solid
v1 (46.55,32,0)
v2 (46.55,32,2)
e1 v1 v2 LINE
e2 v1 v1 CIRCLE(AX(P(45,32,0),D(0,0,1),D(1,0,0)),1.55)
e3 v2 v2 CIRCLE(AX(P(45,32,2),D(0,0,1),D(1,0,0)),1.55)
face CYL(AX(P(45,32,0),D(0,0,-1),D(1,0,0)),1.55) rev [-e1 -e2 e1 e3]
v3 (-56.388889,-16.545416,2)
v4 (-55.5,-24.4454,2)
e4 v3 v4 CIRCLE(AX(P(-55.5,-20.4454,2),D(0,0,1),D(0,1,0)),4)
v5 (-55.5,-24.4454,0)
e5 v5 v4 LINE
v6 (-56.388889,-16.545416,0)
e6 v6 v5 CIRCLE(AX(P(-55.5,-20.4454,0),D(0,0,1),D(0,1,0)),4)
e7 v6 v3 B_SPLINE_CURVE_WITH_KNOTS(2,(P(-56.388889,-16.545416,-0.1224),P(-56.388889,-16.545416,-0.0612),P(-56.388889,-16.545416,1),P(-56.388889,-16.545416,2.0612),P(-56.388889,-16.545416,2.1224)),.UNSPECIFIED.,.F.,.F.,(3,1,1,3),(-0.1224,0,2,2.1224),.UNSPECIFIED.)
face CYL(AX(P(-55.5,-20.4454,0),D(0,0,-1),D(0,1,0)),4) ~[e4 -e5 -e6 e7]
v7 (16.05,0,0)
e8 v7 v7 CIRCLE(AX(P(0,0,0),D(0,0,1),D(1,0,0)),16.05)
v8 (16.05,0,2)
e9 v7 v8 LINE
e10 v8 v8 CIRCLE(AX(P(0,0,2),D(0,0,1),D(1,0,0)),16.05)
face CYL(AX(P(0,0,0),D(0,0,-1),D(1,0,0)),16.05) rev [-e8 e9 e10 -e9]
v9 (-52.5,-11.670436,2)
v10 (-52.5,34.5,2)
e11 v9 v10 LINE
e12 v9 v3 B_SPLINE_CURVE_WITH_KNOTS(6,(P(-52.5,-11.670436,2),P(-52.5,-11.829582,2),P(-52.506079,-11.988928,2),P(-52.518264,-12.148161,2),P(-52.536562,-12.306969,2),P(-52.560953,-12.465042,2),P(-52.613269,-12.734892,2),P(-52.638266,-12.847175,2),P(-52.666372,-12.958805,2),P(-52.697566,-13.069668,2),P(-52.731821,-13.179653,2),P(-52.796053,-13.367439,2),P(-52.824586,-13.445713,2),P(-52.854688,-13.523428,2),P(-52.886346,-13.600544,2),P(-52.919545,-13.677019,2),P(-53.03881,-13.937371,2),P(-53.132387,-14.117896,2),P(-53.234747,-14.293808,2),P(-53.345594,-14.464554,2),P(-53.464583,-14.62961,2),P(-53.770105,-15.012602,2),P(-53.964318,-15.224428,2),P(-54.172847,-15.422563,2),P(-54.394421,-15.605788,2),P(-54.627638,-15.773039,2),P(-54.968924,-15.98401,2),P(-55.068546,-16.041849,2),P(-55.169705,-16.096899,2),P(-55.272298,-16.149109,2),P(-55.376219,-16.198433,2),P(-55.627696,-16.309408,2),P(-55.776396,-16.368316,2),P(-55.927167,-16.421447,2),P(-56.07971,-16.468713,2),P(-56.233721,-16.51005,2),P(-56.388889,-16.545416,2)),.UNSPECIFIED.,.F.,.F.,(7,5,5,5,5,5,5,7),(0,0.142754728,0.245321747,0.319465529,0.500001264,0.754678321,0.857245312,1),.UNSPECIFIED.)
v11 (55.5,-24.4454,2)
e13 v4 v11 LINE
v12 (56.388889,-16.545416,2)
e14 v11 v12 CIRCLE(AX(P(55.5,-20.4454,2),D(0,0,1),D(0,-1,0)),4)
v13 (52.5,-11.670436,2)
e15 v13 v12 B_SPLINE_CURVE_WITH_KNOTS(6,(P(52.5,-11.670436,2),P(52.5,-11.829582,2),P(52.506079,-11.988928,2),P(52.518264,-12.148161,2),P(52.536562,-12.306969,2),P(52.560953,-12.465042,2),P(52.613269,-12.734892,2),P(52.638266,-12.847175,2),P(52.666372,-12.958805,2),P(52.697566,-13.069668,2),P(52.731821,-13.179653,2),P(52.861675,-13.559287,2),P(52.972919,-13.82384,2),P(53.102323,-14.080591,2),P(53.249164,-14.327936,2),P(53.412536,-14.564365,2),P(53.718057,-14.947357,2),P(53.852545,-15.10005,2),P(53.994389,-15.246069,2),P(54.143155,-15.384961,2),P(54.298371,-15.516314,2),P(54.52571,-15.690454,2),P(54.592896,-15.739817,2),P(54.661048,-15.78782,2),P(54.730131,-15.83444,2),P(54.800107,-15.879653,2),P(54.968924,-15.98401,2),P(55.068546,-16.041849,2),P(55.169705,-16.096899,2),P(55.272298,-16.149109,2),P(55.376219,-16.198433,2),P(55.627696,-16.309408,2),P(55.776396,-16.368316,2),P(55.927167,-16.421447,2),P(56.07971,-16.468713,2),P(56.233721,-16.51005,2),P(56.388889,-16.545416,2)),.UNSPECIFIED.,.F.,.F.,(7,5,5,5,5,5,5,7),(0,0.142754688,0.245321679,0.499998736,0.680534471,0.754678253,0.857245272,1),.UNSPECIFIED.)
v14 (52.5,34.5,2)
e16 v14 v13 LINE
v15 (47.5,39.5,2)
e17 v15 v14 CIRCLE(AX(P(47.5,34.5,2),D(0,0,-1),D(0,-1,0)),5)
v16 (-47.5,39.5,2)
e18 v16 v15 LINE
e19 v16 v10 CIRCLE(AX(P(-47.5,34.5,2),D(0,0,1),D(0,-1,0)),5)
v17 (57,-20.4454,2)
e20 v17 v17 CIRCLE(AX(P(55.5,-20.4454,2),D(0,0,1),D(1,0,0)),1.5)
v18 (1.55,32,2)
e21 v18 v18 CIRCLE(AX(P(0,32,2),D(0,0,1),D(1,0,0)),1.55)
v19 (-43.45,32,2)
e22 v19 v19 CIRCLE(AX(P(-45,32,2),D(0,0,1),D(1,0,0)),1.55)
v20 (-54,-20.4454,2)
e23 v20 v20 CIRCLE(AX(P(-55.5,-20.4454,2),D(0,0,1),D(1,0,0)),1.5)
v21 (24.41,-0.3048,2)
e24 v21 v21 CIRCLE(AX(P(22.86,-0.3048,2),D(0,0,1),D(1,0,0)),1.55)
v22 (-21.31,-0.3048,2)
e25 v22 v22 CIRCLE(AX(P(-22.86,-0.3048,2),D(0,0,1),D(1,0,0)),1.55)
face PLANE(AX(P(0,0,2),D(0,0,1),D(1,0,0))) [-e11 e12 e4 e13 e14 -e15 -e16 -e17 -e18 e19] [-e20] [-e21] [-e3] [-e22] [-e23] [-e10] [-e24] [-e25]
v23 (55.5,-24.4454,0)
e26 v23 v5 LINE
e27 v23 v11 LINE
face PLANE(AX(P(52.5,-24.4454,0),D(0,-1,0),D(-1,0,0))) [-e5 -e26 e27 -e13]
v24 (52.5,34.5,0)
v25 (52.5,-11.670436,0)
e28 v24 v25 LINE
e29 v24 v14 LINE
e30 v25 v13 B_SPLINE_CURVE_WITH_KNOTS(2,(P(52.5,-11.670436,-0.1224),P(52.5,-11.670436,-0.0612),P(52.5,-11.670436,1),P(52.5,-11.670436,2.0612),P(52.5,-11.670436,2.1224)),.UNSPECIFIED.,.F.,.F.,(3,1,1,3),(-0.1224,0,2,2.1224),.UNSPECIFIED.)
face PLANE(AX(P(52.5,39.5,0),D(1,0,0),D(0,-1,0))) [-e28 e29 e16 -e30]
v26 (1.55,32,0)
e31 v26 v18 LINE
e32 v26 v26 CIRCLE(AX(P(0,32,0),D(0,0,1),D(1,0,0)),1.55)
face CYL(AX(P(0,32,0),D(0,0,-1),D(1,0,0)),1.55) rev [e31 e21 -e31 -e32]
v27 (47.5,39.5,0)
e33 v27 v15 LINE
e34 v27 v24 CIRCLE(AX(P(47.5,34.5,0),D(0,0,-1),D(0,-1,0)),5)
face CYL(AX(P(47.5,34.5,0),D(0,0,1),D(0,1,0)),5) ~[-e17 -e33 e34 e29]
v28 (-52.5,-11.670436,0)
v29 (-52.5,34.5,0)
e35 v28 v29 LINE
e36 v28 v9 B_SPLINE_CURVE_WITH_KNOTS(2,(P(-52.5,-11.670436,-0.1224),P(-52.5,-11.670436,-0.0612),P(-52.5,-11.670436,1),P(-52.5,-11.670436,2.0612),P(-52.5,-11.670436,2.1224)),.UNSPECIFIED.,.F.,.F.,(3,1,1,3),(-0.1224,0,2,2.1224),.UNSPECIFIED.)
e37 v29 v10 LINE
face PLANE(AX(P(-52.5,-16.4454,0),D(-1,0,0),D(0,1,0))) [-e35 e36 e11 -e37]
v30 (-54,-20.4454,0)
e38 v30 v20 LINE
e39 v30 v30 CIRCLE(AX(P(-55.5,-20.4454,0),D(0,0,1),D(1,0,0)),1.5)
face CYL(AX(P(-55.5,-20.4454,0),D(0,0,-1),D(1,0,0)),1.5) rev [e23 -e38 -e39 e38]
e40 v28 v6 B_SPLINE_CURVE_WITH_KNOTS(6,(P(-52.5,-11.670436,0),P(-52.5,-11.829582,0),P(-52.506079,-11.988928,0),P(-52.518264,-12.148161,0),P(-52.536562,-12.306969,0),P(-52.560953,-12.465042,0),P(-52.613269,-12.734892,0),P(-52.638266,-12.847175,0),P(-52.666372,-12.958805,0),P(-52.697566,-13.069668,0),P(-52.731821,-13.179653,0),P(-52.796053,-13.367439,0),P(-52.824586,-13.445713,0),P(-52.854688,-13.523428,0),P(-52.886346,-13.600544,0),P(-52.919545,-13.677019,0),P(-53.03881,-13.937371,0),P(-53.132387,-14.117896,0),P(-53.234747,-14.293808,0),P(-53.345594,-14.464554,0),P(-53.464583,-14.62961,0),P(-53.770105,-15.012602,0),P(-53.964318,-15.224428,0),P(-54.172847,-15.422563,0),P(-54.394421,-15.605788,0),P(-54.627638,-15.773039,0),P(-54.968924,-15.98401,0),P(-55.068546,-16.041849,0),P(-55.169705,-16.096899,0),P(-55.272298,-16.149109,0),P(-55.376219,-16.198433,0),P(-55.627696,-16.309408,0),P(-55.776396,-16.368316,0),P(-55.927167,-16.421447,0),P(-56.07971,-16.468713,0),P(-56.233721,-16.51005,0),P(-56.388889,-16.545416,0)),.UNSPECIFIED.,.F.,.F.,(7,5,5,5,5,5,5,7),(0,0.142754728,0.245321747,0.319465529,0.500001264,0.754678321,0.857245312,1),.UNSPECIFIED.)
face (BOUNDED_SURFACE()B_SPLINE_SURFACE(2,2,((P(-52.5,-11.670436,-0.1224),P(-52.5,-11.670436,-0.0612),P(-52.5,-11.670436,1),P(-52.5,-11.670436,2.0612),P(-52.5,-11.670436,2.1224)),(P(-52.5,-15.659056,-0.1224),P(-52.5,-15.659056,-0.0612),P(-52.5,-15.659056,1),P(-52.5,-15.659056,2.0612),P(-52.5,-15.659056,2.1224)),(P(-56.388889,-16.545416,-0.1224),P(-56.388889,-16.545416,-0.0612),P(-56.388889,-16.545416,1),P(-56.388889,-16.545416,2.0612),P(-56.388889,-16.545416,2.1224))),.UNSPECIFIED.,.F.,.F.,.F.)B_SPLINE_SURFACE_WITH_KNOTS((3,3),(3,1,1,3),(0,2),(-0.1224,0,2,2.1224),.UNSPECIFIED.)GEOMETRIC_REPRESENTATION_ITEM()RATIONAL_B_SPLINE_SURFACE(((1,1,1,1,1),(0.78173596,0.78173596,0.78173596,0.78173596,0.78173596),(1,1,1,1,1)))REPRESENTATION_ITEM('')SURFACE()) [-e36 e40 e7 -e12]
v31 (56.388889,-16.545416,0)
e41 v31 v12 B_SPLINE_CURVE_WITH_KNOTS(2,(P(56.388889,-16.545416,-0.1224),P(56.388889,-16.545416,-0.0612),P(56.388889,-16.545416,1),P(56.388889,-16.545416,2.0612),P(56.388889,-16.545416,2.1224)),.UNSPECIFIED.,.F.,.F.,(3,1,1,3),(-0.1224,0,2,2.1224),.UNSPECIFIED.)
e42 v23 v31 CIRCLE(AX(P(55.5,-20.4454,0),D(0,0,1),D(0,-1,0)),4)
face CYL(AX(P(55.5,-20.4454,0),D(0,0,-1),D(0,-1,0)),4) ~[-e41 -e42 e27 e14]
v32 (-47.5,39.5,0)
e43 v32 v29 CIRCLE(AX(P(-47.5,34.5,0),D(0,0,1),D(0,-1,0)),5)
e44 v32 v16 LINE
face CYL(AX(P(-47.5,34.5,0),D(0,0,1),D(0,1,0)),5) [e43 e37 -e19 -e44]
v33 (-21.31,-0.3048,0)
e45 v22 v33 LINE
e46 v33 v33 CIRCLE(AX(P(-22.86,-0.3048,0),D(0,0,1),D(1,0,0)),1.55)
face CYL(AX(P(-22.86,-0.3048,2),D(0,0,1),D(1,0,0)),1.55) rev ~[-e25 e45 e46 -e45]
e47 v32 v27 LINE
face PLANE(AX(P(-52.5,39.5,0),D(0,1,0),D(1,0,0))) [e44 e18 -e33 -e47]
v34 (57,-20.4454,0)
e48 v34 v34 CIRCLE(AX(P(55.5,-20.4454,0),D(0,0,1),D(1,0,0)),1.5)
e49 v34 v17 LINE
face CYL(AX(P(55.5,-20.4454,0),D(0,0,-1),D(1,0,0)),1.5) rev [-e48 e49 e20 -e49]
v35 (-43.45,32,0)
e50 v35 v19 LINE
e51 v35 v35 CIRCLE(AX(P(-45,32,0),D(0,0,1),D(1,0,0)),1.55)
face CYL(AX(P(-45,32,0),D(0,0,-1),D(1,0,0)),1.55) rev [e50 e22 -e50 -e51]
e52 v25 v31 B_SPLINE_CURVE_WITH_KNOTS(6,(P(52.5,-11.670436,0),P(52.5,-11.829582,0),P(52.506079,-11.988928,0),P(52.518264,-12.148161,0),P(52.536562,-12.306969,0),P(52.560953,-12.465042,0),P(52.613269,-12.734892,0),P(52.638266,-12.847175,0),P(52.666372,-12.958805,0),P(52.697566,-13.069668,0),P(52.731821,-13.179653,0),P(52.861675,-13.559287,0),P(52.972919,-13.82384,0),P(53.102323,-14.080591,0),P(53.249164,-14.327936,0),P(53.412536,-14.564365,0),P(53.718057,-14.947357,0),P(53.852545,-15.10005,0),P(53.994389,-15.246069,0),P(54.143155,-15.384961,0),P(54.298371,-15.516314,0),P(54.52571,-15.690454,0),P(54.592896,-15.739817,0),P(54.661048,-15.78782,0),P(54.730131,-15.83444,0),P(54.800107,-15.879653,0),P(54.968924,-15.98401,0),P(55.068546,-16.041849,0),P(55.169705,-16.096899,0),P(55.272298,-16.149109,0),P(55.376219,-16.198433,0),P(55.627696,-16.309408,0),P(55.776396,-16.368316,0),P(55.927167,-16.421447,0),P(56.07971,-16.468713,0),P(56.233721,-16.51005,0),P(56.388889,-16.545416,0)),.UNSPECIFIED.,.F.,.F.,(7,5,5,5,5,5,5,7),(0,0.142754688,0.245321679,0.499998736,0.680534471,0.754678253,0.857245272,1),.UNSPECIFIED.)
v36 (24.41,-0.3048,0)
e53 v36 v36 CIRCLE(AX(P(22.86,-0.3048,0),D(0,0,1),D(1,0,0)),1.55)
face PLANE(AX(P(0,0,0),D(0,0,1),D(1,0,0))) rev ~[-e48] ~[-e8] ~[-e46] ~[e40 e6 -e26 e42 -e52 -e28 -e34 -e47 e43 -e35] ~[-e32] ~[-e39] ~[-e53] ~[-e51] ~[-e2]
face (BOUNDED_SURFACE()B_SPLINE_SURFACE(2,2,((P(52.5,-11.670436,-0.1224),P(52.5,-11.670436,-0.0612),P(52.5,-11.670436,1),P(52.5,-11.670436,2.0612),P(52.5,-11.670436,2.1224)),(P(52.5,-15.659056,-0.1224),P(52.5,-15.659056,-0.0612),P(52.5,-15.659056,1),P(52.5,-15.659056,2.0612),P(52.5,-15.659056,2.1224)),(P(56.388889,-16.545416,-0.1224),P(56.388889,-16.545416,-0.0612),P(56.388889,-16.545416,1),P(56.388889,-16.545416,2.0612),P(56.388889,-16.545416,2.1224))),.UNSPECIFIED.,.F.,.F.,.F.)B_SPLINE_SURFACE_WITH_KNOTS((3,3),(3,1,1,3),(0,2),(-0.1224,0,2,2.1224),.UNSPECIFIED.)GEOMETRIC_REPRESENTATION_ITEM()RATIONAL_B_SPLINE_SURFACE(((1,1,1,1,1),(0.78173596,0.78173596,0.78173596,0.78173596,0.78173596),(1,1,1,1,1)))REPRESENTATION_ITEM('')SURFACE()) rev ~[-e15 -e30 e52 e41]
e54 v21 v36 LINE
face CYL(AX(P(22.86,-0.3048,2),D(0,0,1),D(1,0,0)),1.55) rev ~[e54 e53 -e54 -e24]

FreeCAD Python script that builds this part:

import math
import FreeCAD as App
import Part
import Sketcher

V = App.Vector
Q = App.Units.Quantity


def edges_at(feature, points):
    """Names of the edges that pass closest to the given points."""
    edges = feature.Shape.Edges
    near = lambda p: min(range(len(edges)), key=lambda i: edges[i].distToShape(Part.Vertex(*p))[0])
    return sorted({f"Edge{near(p) + 1}" for p in points})

doc = App.newDocument("Part")
body = doc.addObject("PartDesign::Body", "Body")

sketch1 = body.newObject("Sketcher::SketchObject", "Sketch")
sketch1.AttachmentSupport = (doc.getObject("XY_Plane"), [""])
sketch1.MapMode = "FlatFace"
sketch1.addGeometry(Part.LineSegment(V(52.5, 39.5, 0), V(-52.5, 39.5, 0)), False)
sketch1.addGeometry(Part.LineSegment(V(-52.5, 39.5, 0), V(-52.5, -16.4, 0)), False)
sketch1.addGeometry(Part.LineSegment(V(-52.5, -16.4, 0), V(-55.5, -16.4, 0)), False)
sketch1.addGeometry(Part.ArcOfCircle(Part.Circle(V(-55.5, -20.4, 0), V(0, 0, 1), 4), math.radians(90), math.radians(270)), False)
sketch1.addGeometry(Part.LineSegment(V(-55.5, -24.4, 0), V(55.5, -24.4, 0)), False)
sketch1.addGeometry(Part.ArcOfCircle(Part.Circle(V(55.5, -20.4, 0), V(0, 0, 1), 4), math.radians(-90), math.radians(90)), False)
sketch1.addGeometry(Part.LineSegment(V(55.5, -16.4, 0), V(52.5, -16.4, 0)), False)
sketch1.addGeometry(Part.LineSegment(V(52.5, -16.4, 0), V(52.5, 39.5, 0)), False)
sketch1.addGeometry(Part.Circle(V(0, 0, 0), V(0, 0, 1), 16.1), False)
sketch1.addGeometry(Part.Circle(V(-45, 32, 0), V(0, 0, 1), 1.6), False)
sketch1.addGeometry(Part.Circle(V(0, 32, 0), V(0, 0, 1), 1.6), False)
sketch1.addGeometry(Part.Circle(V(45, 32, 0), V(0, 0, 1), 1.6), False)
sketch1.addGeometry(Part.Circle(V(55.5, -20.4, 0), V(0, 0, 1), 1.5), False)
sketch1.addGeometry(Part.Circle(V(-55.5, -20.4, 0), V(0, 0, 1), 1.5), False)
sketch1.addConstraint(Sketcher.Constraint("Coincident", 0, 2, 1, 1))
sketch1.addConstraint(Sketcher.Constraint("Coincident", 1, 2, 2, 1))
sketch1.addConstraint(Sketcher.Constraint("Tangent", 2, 2, 3, 1))
sketch1.addConstraint(Sketcher.Constraint("Tangent", 3, 2, 4, 1))
sketch1.addConstraint(Sketcher.Constraint("Tangent", 4, 2, 5, 1))
sketch1.addConstraint(Sketcher.Constraint("Tangent", 5, 2, 6, 1))
sketch1.addConstraint(Sketcher.Constraint("Coincident", 6, 2, 7, 1))
sketch1.addConstraint(Sketcher.Constraint("Coincident", 7, 2, 0, 1))
sketch1.addConstraint(Sketcher.Constraint("Horizontal", 0))
sketch1.addConstraint(Sketcher.Constraint("Vertical", 1))
sketch1.addConstraint(Sketcher.Constraint("Horizontal", 2))
sketch1.addConstraint(Sketcher.Constraint("Horizontal", 4))
sketch1.addConstraint(Sketcher.Constraint("Horizontal", 6))
sketch1.addConstraint(Sketcher.Constraint("Vertical", 7))
sketch1.addConstraint(Sketcher.Constraint("Coincident", 8, 3, -1, 1))
sketch1.addConstraint(Sketcher.Constraint("Coincident", 12, 3, 5, 3))
sketch1.addConstraint(Sketcher.Constraint("Coincident", 13, 3, 3, 3))
sketch1.addConstraint(Sketcher.Constraint("Equal", 3, 5))
sketch1.addConstraint(Sketcher.Constraint("Equal", 9, 10))
sketch1.addConstraint(Sketcher.Constraint("Equal", 10, 11))
sketch1.addConstraint(Sketcher.Constraint("Equal", 12, 13))
sketch1.addConstraint(Sketcher.Constraint("Symmetric", 9, 3, 11, 3, -2))
sketch1.addConstraint(Sketcher.Constraint("PointOnObject", 10, 3, -2))
sketch1.addConstraint(Sketcher.Constraint("Horizontal", 9, 3, 10, 3))
sketch1.addConstraint(Sketcher.Constraint("Equal", 2, 6))
sketch1.addConstraint(Sketcher.Constraint("Diameter", 12, Q("3 mm")))
sketch1.addConstraint(Sketcher.Constraint("Radius", 3, Q("4 mm")))
sketch1.addConstraint(Sketcher.Constraint("Diameter", 8, Q("32.1 mm")))
sketch1.addConstraint(Sketcher.Constraint("Diameter", 9, Q("3.1 mm")))
sketch1.addConstraint(Sketcher.Constraint("DistanceX", 0, 2, 0, 1, Q("105 mm")))
sketch1.addConstraint(Sketcher.Constraint("DistanceX", 2, 2, 2, 1, Q("3 mm")))
sketch1.addConstraint(Sketcher.Constraint("DistanceX", 9, 3, -1, 1, Q("45 mm")))
sketch1.addConstraint(Sketcher.Constraint("DistanceX", 0, 2, 9, 3, Q("7.5 mm")))
sketch1.addConstraint(Sketcher.Constraint("DistanceY", 9, 3, 0, 2, Q("7.5 mm")))
sketch1.addConstraint(Sketcher.Constraint("DistanceY", -1, 1, 9, 3, Q("32 mm")))
sketch1.addConstraint(Sketcher.Constraint("DistanceY", 1, 2, 1, 1, Q("55.9454 mm")))
pad1 = body.newObject("PartDesign::Pad", "Pad")
pad1.Profile = sketch1
pad1.Length = 2

sketch2 = body.newObject("Sketcher::SketchObject", "Sketch001")
sketch2.AttachmentSupport = (doc.getObject("XY_Plane"), [""])
sketch2.MapMode = "FlatFace"
sketch2.AttachmentOffset = App.Placement(V(0, 0, 2), App.Rotation())
sketch2.addGeometry(Part.Circle(V(-22.9, -0.3, 0), V(0, 0, 1), 1.6), False)
sketch2.addGeometry(Part.Circle(V(22.9, -0.3, 0), V(0, 0, 1), 1.6), False)
sketch2.addConstraint(Sketcher.Constraint("Equal", 0, 1))
sketch2.addConstraint(Sketcher.Constraint("Symmetric", 0, 3, 1, 3, -2))
sketch2.addConstraint(Sketcher.Constraint("Diameter", 0, Q("3.1 mm")))
sketch2.addConstraint(Sketcher.Constraint("DistanceX", 0, 3, 1, 3, Q("45.72 mm")))
sketch2.addConstraint(Sketcher.Constraint("DistanceY", 0, 3, -1, 1, Q("0.3048 mm")))
pocket1 = body.newObject("PartDesign::Pocket", "Pocket")
pocket1.Profile = sketch2
pocket1.Type = "ThroughAll"
doc.recompute()

fillet = body.newObject("PartDesign::Fillet", "Fillet")
fillet.Base = (pocket1, edges_at(pocket1, [
    (-52.5, -16.445, 1),
    (-52.5, 39.5, 1),
    (52.5, 39.5, 1),
    (52.5, -16.445, 1),
]))
fillet.Radius = 5

doc.recompute()
